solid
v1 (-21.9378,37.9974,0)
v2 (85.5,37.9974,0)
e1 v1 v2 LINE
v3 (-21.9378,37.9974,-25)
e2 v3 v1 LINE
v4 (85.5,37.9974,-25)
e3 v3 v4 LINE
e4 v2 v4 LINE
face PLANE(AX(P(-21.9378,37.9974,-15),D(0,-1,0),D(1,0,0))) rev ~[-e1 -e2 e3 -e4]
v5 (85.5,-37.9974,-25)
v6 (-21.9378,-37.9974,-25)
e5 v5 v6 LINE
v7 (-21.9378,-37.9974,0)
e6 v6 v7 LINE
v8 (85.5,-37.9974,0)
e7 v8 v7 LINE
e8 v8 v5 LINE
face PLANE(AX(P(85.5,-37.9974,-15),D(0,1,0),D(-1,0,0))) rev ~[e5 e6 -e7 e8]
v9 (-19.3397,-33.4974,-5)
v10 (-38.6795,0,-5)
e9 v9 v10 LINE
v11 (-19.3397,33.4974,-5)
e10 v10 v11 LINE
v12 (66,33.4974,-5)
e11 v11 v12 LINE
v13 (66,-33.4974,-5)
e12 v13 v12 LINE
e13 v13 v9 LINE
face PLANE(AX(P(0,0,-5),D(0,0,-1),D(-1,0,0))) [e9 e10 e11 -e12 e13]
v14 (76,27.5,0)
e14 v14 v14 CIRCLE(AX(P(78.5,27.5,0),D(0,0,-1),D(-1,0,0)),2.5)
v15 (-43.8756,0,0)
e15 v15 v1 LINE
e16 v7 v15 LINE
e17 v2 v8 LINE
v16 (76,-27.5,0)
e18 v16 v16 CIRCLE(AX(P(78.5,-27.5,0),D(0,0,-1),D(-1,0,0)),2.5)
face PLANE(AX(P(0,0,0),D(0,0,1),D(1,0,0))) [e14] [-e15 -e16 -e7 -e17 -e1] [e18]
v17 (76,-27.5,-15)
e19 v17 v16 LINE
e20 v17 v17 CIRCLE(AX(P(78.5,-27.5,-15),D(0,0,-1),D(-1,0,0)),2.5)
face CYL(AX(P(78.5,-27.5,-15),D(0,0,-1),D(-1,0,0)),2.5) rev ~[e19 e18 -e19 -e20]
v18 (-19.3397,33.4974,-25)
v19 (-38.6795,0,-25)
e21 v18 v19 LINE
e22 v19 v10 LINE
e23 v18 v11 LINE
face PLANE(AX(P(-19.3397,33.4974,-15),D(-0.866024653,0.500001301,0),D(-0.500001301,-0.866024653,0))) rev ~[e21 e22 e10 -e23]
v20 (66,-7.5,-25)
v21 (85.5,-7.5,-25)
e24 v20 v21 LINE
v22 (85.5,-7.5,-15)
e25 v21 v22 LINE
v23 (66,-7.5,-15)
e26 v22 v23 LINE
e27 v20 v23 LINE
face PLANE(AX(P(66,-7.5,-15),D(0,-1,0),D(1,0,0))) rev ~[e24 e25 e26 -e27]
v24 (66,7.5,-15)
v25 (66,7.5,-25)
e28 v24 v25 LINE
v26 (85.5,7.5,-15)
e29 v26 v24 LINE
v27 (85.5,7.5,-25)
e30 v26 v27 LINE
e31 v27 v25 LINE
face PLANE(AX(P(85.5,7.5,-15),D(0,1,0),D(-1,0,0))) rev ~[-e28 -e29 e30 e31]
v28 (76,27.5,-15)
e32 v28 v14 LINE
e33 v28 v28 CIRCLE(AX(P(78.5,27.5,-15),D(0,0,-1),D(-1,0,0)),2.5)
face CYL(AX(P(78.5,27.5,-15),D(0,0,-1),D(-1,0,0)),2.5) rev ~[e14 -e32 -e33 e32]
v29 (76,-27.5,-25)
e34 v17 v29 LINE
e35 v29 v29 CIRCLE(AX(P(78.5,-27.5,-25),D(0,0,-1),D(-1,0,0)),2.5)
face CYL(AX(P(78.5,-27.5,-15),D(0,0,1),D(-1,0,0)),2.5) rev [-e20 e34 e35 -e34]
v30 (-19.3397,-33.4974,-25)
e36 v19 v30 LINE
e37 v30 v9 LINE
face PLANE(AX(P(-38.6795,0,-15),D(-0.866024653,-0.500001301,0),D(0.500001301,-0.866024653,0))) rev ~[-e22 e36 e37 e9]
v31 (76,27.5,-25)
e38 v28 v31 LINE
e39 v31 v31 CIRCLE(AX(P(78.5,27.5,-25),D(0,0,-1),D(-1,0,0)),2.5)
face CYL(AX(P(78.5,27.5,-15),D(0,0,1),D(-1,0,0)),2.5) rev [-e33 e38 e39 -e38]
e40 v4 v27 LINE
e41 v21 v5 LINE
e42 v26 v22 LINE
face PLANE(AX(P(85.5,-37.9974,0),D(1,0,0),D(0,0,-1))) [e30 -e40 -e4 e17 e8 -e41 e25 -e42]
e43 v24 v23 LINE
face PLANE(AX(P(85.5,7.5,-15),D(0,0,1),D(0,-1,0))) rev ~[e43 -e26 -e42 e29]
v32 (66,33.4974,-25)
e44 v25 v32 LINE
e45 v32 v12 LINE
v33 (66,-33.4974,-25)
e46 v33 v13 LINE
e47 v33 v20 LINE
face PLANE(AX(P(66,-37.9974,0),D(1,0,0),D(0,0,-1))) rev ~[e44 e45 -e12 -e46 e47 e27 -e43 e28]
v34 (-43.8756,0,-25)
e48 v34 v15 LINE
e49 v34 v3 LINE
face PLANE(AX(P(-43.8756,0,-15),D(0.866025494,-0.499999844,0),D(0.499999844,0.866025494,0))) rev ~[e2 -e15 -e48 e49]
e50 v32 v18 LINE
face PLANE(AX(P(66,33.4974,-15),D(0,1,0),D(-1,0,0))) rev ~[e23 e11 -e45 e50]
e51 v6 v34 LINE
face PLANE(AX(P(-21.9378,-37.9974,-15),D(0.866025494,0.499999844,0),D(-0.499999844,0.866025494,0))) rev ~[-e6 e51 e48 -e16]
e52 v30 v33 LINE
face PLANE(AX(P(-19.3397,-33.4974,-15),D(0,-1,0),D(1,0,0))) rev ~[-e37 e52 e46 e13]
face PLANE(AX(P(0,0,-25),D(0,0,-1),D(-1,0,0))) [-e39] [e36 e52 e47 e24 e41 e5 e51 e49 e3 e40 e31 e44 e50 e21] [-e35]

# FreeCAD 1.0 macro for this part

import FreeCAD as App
import Part
import Sketcher

V = App.Vector
Q = App.Units.Quantity

doc = App.newDocument("Part")
body = doc.addObject("PartDesign::Body", "Body")

sketch1 = body.newObject("Sketcher::SketchObject", "Sketch")
sketch1.AttachmentSupport = (doc.getObject("XY_Plane"), [""])
sketch1.MapMode = "FlatFace"
sketch1.addGeometry([
    Part.LineSegment(V(-28, 48, 0), V(-56, 0, 0)),
    Part.LineSegment(V(-56, 0, 0), V(-28, -48, 0)),
    Part.LineSegment(V(-28, -48, 0), V(86, -48, 0)),
    Part.LineSegment(V(86, -48, 0), V(86, 48, 0)),
    Part.LineSegment(V(86, 48, 0), V(-28, 48, 0)),
], False)
sketch1.addConstraint([
    Sketcher.Constraint("Coincident", 0, 2, 1, 1),
    Sketcher.Constraint("Coincident", 1, 2, 2, 1),
    Sketcher.Constraint("Coincident", 2, 2, 3, 1),
    Sketcher.Constraint("Coincident", 3, 2, 4, 1),
    Sketcher.Constraint("Coincident", 4, 2, 0, 1),
    Sketcher.Constraint("Horizontal", 2),
    Sketcher.Constraint("Vertical", 3),
    Sketcher.Constraint("Horizontal", 4),
    Sketcher.Constraint("Symmetric", 1, 2, 4, 2, -1),
    Sketcher.Constraint("PointOnObject", 0, 2, -1),
    Sketcher.Constraint("DistanceX", 2, 1, 2, 2, Q("114 mm")),
    Sketcher.Constraint("Angle", 0, Q("-120 deg")),
    Sketcher.Constraint("Distance", 0, Q("56 mm")),
    Sketcher.Constraint("DistanceX", 0, 2, -1, 1, Q("56 mm")),
])
pad1 = body.newObject("PartDesign::Pad", "Pad")
pad1.Profile = sketch1
pad1.Length = 5

sketch2 = body.newObject("Sketcher::SketchObject", "Sketch001")
sketch2.AttachmentSupport = (doc.getObject("XY_Plane"), [""])
sketch2.MapMode = "FlatFace"
sketch2.addGeometry([
    Part.LineSegment(V(86, 48, 0), V(86, -48, 0)),
    Part.LineSegment(V(86, -48, 0), V(-28, -48, 0)),
    Part.LineSegment(V(-28, -48, 0), V(-56, 0, 0)),
    Part.LineSegment(V(-56, 0, 0), V(-28, 48, 0)),
    Part.LineSegment(V(-28, 48, 0), V(86, 48, 0)),
    Part.LineSegment(V(-19, -33, 0), V(66, -33, 0)),
    Part.LineSegment(V(66, -33, 0), V(66, 33, 0)),
    Part.LineSegment(V(66, 33, 0), V(-19, 33, 0)),
    Part.LineSegment(V(-19, 33, 0), V(-39, 0, 0)),
    Part.LineSegment(V(-39, 0, 0), V(-19, -33, 0)),
], False)
sketch2.addConstraint([
    Sketcher.Constraint("Coincident", 0, 2, 1, 1),
    Sketcher.Constraint("Coincident", 1, 2, 2, 1),
    Sketcher.Constraint("Coincident", 2, 2, 3, 1),
    Sketcher.Constraint("Coincident", 3, 2, 4, 1),
    Sketcher.Constraint("Coincident", 4, 2, 0, 1),
    Sketcher.Constraint("Coincident", 5, 2, 6, 1),
    Sketcher.Constraint("Coincident", 6, 2, 7, 1),
    Sketcher.Constraint("Coincident", 7, 2, 8, 1),
    Sketcher.Constraint("Coincident", 8, 2, 9, 1),
    Sketcher.Constraint("Coincident", 9, 2, 5, 1),
    Sketcher.Constraint("Vertical", 0),
    Sketcher.Constraint("Horizontal", 1),
    Sketcher.Constraint("Horizontal", 4),
    Sketcher.Constraint("Horizontal", 5),
    Sketcher.Constraint("Vertical", 6),
    Sketcher.Constraint("Horizontal", 7),
    Sketcher.Constraint("Symmetric", 1, 2, 3, 2, -1),
    Sketcher.Constraint("Symmetric", 7, 2, 9, 2, -1),
    Sketcher.Constraint("PointOnObject", 2, 2, -1),
    Sketcher.Constraint("PointOnObject", 8, 2, -1),
    Sketcher.Constraint("Parallel", 3, 8),
    Sketcher.Constraint("DistanceX", 5, 2, 0, 2, Q("20 mm")),
    Sketcher.Constraint("DistanceY", 0, 2, 5, 2, Q("15 mm")),
    Sketcher.Constraint("DistanceX", 1, 2, 1, 1, Q("114 mm")),
    Sketcher.Constraint("Angle", 2, Q("120 deg")),
    Sketcher.Constraint("Distance", 2, Q("56 mm")),
    Sketcher.Constraint("DistanceX", -1, 1, 0, 2, Q("86 mm")),
    Sketcher.Constraint("DistanceX", 5, 1, 5, 2, Q("85.3397 mm")),
])
pad2 = body.newObject("PartDesign::Pad", "Pad001")
pad2.Profile = sketch2
pad2.Length = 15
pad2.Reversed = True

sketch3 = body.newObject("Sketcher::SketchObject", "Sketch002")
sketch3.AttachmentSupport = (doc.getObject("XY_Plane"), [""])
sketch3.MapMode = "FlatFace"
sketch3.AttachmentOffset = App.Placement(V(0, 0, 5), App.Rotation())
sketch3.addGeometry([
    Part.LineSegment(V(86, -48, 0), V(86, 48, 0)),
    Part.LineSegment(V(86, 48, 0), V(-28, 48, 0)),
    Part.LineSegment(V(-28, 48, 0), V(-56, 0, 0)),
    Part.LineSegment(V(-56, 0, 0), V(-28, -48, 0)),
    Part.LineSegment(V(-28, -48, 0), V(86, -48, 0)),
    Part.LineSegment(V(76, 38, 0), V(76, -38, 0)),
    Part.LineSegment(V(76, -38, 0), V(-22, -38, 0)),
    Part.LineSegment(V(-22, -38, 0), V(-44, 0, 0)),
    Part.LineSegment(V(-44, 0, 0), V(-22, 38, 0)),
    Part.LineSegment(V(-22, 38, 0), V(76, 38, 0)),
], False)
sketch3.addConstraint([
    Sketcher.Constraint("Coincident", 0, 2, 1, 1),
    Sketcher.Constraint("Coincident", 1, 2, 2, 1),
    Sketcher.Constraint("Coincident", 2, 2, 3, 1),
    Sketcher.Constraint("Coincident", 3, 2, 4, 1),
    Sketcher.Constraint("Coincident", 4, 2, 0, 1),
    Sketcher.Constraint("Coincident", 5, 2, 6, 1),
    Sketcher.Constraint("Coincident", 6, 2, 7, 1),
    Sketcher.Constraint("Coincident", 7, 2, 8, 1),
    Sketcher.Constraint("Coincident", 8, 2, 9, 1),
    Sketcher.Constraint("Coincident", 9, 2, 5, 1),
    Sketcher.Constraint("Vertical", 0),
    Sketcher.Constraint("Horizontal", 1),
    Sketcher.Constraint("Horizontal", 4),
    Sketcher.Constraint("Vertical", 5),
    Sketcher.Constraint("Horizontal", 6),
    Sketcher.Constraint("Horizontal", 9),
    Sketcher.Constraint("Symmetric", 1, 2, 3, 2, -1),
    Sketcher.Constraint("Symmetric", 6, 2, 8, 2, -1),
    Sketcher.Constraint("PointOnObject", 2, 2, -1),
    Sketcher.Constraint("PointOnObject", 7, 2, -1),
    Sketcher.Constraint("Parallel", 3, 7),
    Sketcher.Constraint("DistanceX", 5, 2, 4, 2, Q("10 mm")),
    Sketcher.Constraint("DistanceY", 4, 2, 5, 2, Q("10 mm")),
    Sketcher.Constraint("DistanceX", 1, 2, 1, 1, Q("114 mm")),
    Sketcher.Constraint("Angle", 2, Q("-120 deg")),
    Sketcher.Constraint("Distance", 2, Q("56 mm")),
    Sketcher.Constraint("DistanceX", -1, 1, 0, 2, Q("86 mm")),
    Sketcher.Constraint("DistanceX", 6, 2, 6, 1, Q("98.2265 mm")),
])
pocket1 = body.newObject("PartDesign::Pocket", "Pocket")
pocket1.Profile = sketch3
pocket1.Type = "ThroughAll"

sketch4 = body.newObject("Sketcher::SketchObject", "Sketch003")
sketch4.AttachmentSupport = (doc.getObject("XY_Plane"), [""])
sketch4.MapMode = "FlatFace"
sketch4.addGeometry([
    Part.LineSegment(V(86, -38, 0), V(76, -38, 0)),
    Part.LineSegment(V(76, -38, 0), V(76, 38, 0)),
    Part.LineSegment(V(76, 38, 0), V(86, 38, 0)),
    Part.LineSegment(V(86, 38, 0), V(86, -38, 0)),
], False)
sketch4.addConstraint([
    Sketcher.Constraint("Coincident", 0, 2, 1, 1),
    Sketcher.Constraint("Coincident", 1, 2, 2, 1),
    Sketcher.Constraint("Coincident", 2, 2, 3, 1),
    Sketcher.Constraint("Coincident", 3, 2, 0, 1),
    Sketcher.Constraint("Horizontal", 0),
    Sketcher.Constraint("Vertical", 1),
    Sketcher.Constraint("Horizontal", 2),
    Sketcher.Constraint("Vertical", 3),
    Sketcher.Constraint("DistanceX", 0, 2, 0, 1, Q("10 mm")),
    Sketcher.Constraint("DistanceX", -1, 1, 0, 2, Q("76 mm")),
    Sketcher.Constraint("DistanceY", 1, 1, 1, 2, Q("76.9948 mm")),
    Sketcher.Constraint("DistanceY", 0, 2, -1, 1, Q("38.4974 mm")),
])
pad3 = body.newObject("PartDesign::Pad", "Pad002")
pad3.Profile = sketch4
pad3.Type = "TwoLengths"
pad3.Length = 15
pad3.Length2 = 5
pad3.Reversed = True

sketch5 = body.newObject("Sketcher::SketchObject", "Sketch004")
sketch5.AttachmentSupport = (doc.getObject("XY_Plane"), [""])
sketch5.MapMode = "FlatFace"
sketch5.addGeometry([
    Part.LineSegment(V(-19, 33, 0), V(66, 33, 0)),
    Part.LineSegment(V(66, 33, 0), V(66, -33, 0)),
    Part.LineSegment(V(66, -33, 0), V(-19, -33, 0)),
    Part.LineSegment(V(-19, -33, 0), V(-39, 0, 0)),
    Part.LineSegment(V(-39, 0, 0), V(-19, 33, 0)),
], False)
sketch5.addConstraint([
    Sketcher.Constraint("Coincident", 0, 2, 1, 1),
    Sketcher.Constraint("Coincident", 1, 2, 2, 1),
    Sketcher.Constraint("Coincident", 2, 2, 3, 1),
    Sketcher.Constraint("Coincident", 3, 2, 4, 1),
    Sketcher.Constraint("Coincident", 4, 2, 0, 1),
    Sketcher.Constraint("Horizontal", 0),
    Sketcher.Constraint("Vertical", 1),
    Sketcher.Constraint("Horizontal", 2),
    Sketcher.Constraint("Symmetric", 2, 2, 4, 2, -1),
    Sketcher.Constraint("PointOnObject", 3, 2, -1),
    Sketcher.Constraint("Angle", 3, Q("120 deg")),
    Sketcher.Constraint("DistanceX", -1, 1, 0, 2, Q("66 mm")),
    Sketcher.Constraint("DistanceX", 0, 1, 0, 2, Q("85.3397 mm")),
    Sketcher.Constraint("DistanceY", 1, 2, 1, 1, Q("66.9948 mm")),
])
pad4 = body.newObject("PartDesign::Pad", "Pad003")
pad4.Profile = sketch5
pad4.Length = 5
pad4.Reversed = True

sketch6 = body.newObject("Sketcher::SketchObject", "Sketch005")
sketch6.AttachmentSupport = (doc.getObject("XY_Plane"), [""])
sketch6.MapMode = "FlatFace"
sketch6.AttachmentOffset = App.Placement(V(0, 0, 5), App.Rotation())
sketch6.addGeometry([
    Part.LineSegment(V(86, -38, 0), V(86, 38, 0)),
    Part.LineSegment(V(86, 38, 0), V(-22, 38, 0)),
    Part.LineSegment(V(-22, 38, 0), V(-44, 0, 0)),
    Part.LineSegment(V(-44, 0, 0), V(-22, -38, 0)),
    Part.LineSegment(V(-22, -38, 0), V(86, -38, 0)),
], False)
sketch6.addConstraint([
    Sketcher.Constraint("Coincident", 0, 2, 1, 1),
    Sketcher.Constraint("Coincident", 1, 2, 2, 1),
    Sketcher.Constraint("Coincident", 2, 2, 3, 1),
    Sketcher.Constraint("Coincident", 3, 2, 4, 1),
    Sketcher.Constraint("Coincident", 4, 2, 0, 1),
    Sketcher.Constraint("Vertical", 0),
    Sketcher.Constraint("Horizontal", 1),
    Sketcher.Constraint("Horizontal", 4),
    Sketcher.Constraint("Symmetric", 1, 2, 3, 2, -1),
    Sketcher.Constraint("PointOnObject", 2, 2, -1),
    Sketcher.Constraint("Angle", 2, Q("-120 deg")),
    Sketcher.Constraint("DistanceX", -1, 1, 0, 2, Q("86 mm")),
    Sketcher.Constraint("Distance", 2, Q("44.453 mm")),
    Sketcher.Constraint("DistanceX", 1, 2, 1, 1, Q("108.2265 mm")),
])
pocket2 = body.newObject("PartDesign::Pocket", "Pocket001")
pocket2.Profile = sketch6
pocket2.Length = 5

sketch7 = body.newObject("Sketcher::SketchObject", "Sketch006")
sketch7.AttachmentSupport = (doc.getObject("YZ_Plane"), [""])
sketch7.MapMode = "FlatFace"
sketch7.AttachmentOffset = App.Placement(V(0, 0, 66), App.Rotation())
sketch7.addGeometry([
    Part.LineSegment(V(-8, -15, 0), V(-8, -5, 0)),
    Part.LineSegment(V(-8, -5, 0), V(8, -5, 0)),
    Part.LineSegment(V(8, -5, 0), V(8, -15, 0)),
    Part.LineSegment(V(8, -15, 0), V(-8, -15, 0)),
], False)
sketch7.addConstraint([
    Sketcher.Constraint("Coincident", 0, 2, 1, 1),
    Sketcher.Constraint("Coincident", 1, 2, 2, 1),
    Sketcher.Constraint("Coincident", 2, 2, 3, 1),
    Sketcher.Constraint("Coincident", 3, 2, 0, 1),
    Sketcher.Constraint("Vertical", 0),
    Sketcher.Constraint("Horizontal", 1),
    Sketcher.Constraint("Vertical", 2),
    Sketcher.Constraint("Horizontal", 3),
    Sketcher.Constraint("DistanceX", 1, 1, 1, 2, Q("15 mm")),
    Sketcher.Constraint("DistanceY", 2, 2, -1, 1, Q("15 mm")),
    Sketcher.Constraint("DistanceY", 0, 1, 0, 2, Q("10 mm")),
    Sketcher.Constraint("DistanceX", 0, 2, -1, 1, Q("7.5 mm")),
])
pocket3 = body.newObject("PartDesign::Pocket", "Pocket002")
pocket3.Profile = sketch7
pocket3.Type = "ThroughAll"
pocket3.Reversed = True

sketch8 = body.newObject("Sketcher::SketchObject", "Sketch007")
sketch8.AttachmentSupport = (doc.getObject("XY_Plane"), [""])
sketch8.MapMode = "FlatFace"
sketch8.AttachmentOffset = App.Placement(V(0, 0, -15), App.Rotation())
sketch8.addGeometry([
    Part.Circle(V(78.5, -27.5, 0), V(0, 0, 1), 2.5),
    Part.Circle(V(78.5, 27.5, 0), V(0, 0, 1), 2.5),
], False)
sketch8.addConstraint([
    Sketcher.Constraint("Equal", 0, 1),
    Sketcher.Constraint("Symmetric", 0, 3, 1, 3, -1),
    Sketcher.Constraint("Diameter", 0, Q("5 mm")),
    Sketcher.Constraint("DistanceY", 0, 3, 1, 3, Q("55 mm")),
    Sketcher.Constraint("DistanceX", -1, 1, 0, 3, Q("78.5 mm")),
])
pocket4 = body.newObject("PartDesign::Pocket", "Pocket003")
pocket4.Profile = sketch8
pocket4.Type = "ThroughAll"
pocket4.Reversed = True

sketch9 = body.newObject("Sketcher::SketchObject", "Sketch008")
sketch9.AttachmentSupport = (doc.getObject("XY_Plane"), [""])
sketch9.MapMode = "FlatFace"
sketch9.addGeometry([
    Part.LineSegment(V(86, 38, 0), V(-22, 38, 0)),
    Part.LineSegment(V(-22, 38, 0), V(-44, 0, 0)),
    Part.LineSegment(V(-44, 0, 0), V(-22, -38, 0)),
    Part.LineSegment(V(-22, -38, 0), V(86, -38, 0)),
    Part.LineSegment(V(86, -38, 0), V(86, 38, 0)),
    Part.LineSegment(V(-22, -38, 0), V(-44, 0, 0)),
    Part.LineSegment(V(-44, 0, 0), V(-22, 38, 0)),
    Part.LineSegment(V(-22, 38, 0), V(86, 38, 0)),
    Part.LineSegment(V(86, 38, 0), V(86, -38, 0)),
    Part.LineSegment(V(86, -38, 0), V(-22, -38, 0)),
], False)
sketch9.addConstraint([
    Sketcher.Constraint("Coincident", 0, 2, 1, 1),
    Sketcher.Constraint("Coincident", 1, 2, 2, 1),
    Sketcher.Constraint("Coincident", 2, 2, 3, 1),
    Sketcher.Constraint("Coincident", 3, 2, 4, 1),
    Sketcher.Constraint("Coincident", 4, 2, 0, 1),
    Sketcher.Constraint("Coincident", 5, 2, 6, 1),
    Sketcher.Constraint("Coincident", 6, 2, 7, 1),
    Sketcher.Constraint("Coincident", 7, 2, 8, 1),
    Sketcher.Constraint("Coincident", 8, 2, 9, 1),
    Sketcher.Constraint("Coincident", 9, 2, 5, 1),
    Sketcher.Constraint("Horizontal", 0),
    Sketcher.Constraint("Horizontal", 3),
    Sketcher.Constraint("Vertical", 4),
    Sketcher.Constraint("Horizontal", 7),
    Sketcher.Constraint("Vertical", 8),
    Sketcher.Constraint("Horizontal", 9),
    Sketcher.Constraint("Symmetric", 0, 2, 2, 2, -1),
    Sketcher.Constraint("Symmetric", 6, 2, 9, 2, -1),
    Sketcher.Constraint("PointOnObject", 1, 2, -1),
    Sketcher.Constraint("PointOnObject", 5, 2, -1),
    Sketcher.Constraint("Parallel", 2, 5),
    Sketcher.Constraint("DistanceY", 6, 2, 0, 2, Q("0.5 mm")),
    Sketcher.Constraint("DistanceX", 7, 2, 4, 2, Q("0.5 mm")),
    Sketcher.Constraint("Angle", 1, Q("-120 deg")),
    Sketcher.Constraint("DistanceX", -1, 1, 3, 2, Q("86 mm")),
    Sketcher.Constraint("Distance", 1, Q("44.453 mm")),
    Sketcher.Constraint("DistanceX", 0, 2, 0, 1, Q("108.2265 mm")),
    Sketcher.Constraint("DistanceX", 7, 1, 7, 2, Q("107.4378 mm")),
])
pocket5 = body.newObject("PartDesign::Pocket", "Pocket004")
pocket5.Profile = sketch9
pocket5.Type = "ThroughAll"

sketch10 = body.newObject("Sketcher::SketchObject", "Sketch009")
sketch10.AttachmentSupport = (doc.getObject("XY_Plane"), [""])
sketch10.MapMode = "FlatFace"
sketch10.AttachmentOffset = App.Placement(V(0, 0, -15), App.Rotation())
sketch10.addGeometry([
    Part.LineSegment(V(-21.9, 38, 0), V(85.5, 38, 0)),
    Part.LineSegment(V(85.5, 38, 0), V(85.5, 7.5, 0)),
    Part.LineSegment(V(85.5, 7.5, 0), V(66, 7.5, 0)),
    Part.LineSegment(V(66, 7.5, 0), V(66, 33.5, 0)),
    Part.LineSegment(V(66, 33.5, 0), V(-19.3, 33.5, 0)),
    Part.LineSegment(V(-19.3, 33.5, 0), V(-38.7, 0, 0)),
    Part.LineSegment(V(-38.7, 0, 0), V(-19.3, -33.5, 0)),
    Part.LineSegment(V(-19.3, -33.5, 0), V(66, -33.5, 0)),
    Part.LineSegment(V(66, -33.5, 0), V(66, -7.5, 0)),
    Part.LineSegment(V(66, -7.5, 0), V(85.5, -7.5, 0)),
    Part.LineSegment(V(85.5, -7.5, 0), V(85.5, -38, 0)),
    Part.LineSegment(V(85.5, -38, 0), V(-21.9, -38, 0)),
    Part.LineSegment(V(-21.9, -38, 0), V(-43.9, 0, 0)),
    Part.LineSegment(V(-43.9, 0, 0), V(-21.9, 38, 0)),
    Part.Circle(V(78.5, -27.5, 0), V(0, 0, 1), 2.5),
    Part.Circle(V(78.5, 27.5, 0), V(0, 0, 1), 2.5),
], False)
sketch10.addConstraint([
    Sketcher.Constraint("Coincident", 0, 2, 1, 1),
    Sketcher.Constraint("Coincident", 1, 2, 2, 1),
    Sketcher.Constraint("Coincident", 2, 2, 3, 1),
    Sketcher.Constraint("Coincident", 3, 2, 4, 1),
    Sketcher.Constraint("Coincident", 4, 2, 5, 1),
    Sketcher.Constraint("Coincident", 5, 2, 6, 1),
    Sketcher.Constraint("Coincident", 6, 2, 7, 1),
    Sketcher.Constraint("Coincident", 7, 2, 8, 1),
    Sketcher.Constraint("Coincident", 8, 2, 9, 1),
    Sketcher.Constraint("Coincident", 9, 2, 10, 1),
    Sketcher.Constraint("Coincident", 10, 2, 11, 1),
    Sketcher.Constraint("Coincident", 11, 2, 12, 1),
    Sketcher.Constraint("Coincident", 12, 2, 13, 1),
    Sketcher.Constraint("Coincident", 13, 2, 0, 1),
    Sketcher.Constraint("Horizontal", 0),
    Sketcher.Constraint("Vertical", 1),
    Sketcher.Constraint("Horizontal", 2),
    Sketcher.Constraint("Vertical", 3),
    Sketcher.Constraint("Horizontal", 4),
    Sketcher.Constraint("Horizontal", 7),
    Sketcher.Constraint("Vertical", 8),
    Sketcher.Constraint("Horizontal", 9),
    Sketcher.Constraint("Vertical", 10),
    Sketcher.Constraint("Horizontal", 11),
    Sketcher.Constraint("Equal", 14, 15),
    Sketcher.Constraint("Symmetric", 14, 3, 15, 3, -1),
    Sketcher.Constraint("Symmetric", 4, 2, 6, 2, -1),
    Sketcher.Constraint("Symmetric", 2, 2, 8, 2, -1),
    Sketcher.Constraint("Symmetric", 0, 2, 10, 2, -1),
    Sketcher.Constraint("PointOnObject", 5, 2, -1),
    Sketcher.Constraint("PointOnObject", 12, 2, -1),
    Sketcher.Constraint("Parallel", 6, 12),
    Sketcher.Constraint("Parallel", 5, 13),
    Sketcher.Constraint("Diameter", 14, Q("5 mm")),
    Sketcher.Constraint("Angle", 5, Q("-120 deg")),
    Sketcher.Constraint("DistanceX", 2, 2, 2, 1, Q("19.5 mm")),
    Sketcher.Constraint("DistanceX", -1, 1, 2, 2, Q("66 mm")),
    Sketcher.Constraint("DistanceY", 14, 3, 15, 3, Q("55 mm")),
    Sketcher.Constraint("DistanceX", 15, 3, 0, 2, Q("7 mm")),
    Sketcher.Constraint("DistanceY", 1, 2, 15, 3, Q("20 mm")),
    Sketcher.Constraint("DistanceY", 3, 2, 0, 2, Q("4.5 mm")),
    Sketcher.Constraint("DistanceX", 0, 1, 0, 2, Q("107.4378 mm")),
    Sketcher.Constraint("DistanceX", 4, 2, 4, 1, Q("85.3397 mm")),
    Sketcher.Constraint("DistanceY", 1, 2, 1, 1, Q("30.4974 mm")),
])
pad5 = body.newObject("PartDesign::Pad", "Pad004")
pad5.Profile = sketch10
pad5.Length = 10
pad5.Reversed = True

sketch11 = body.newObject("Sketcher::SketchObject", "Sketch010")
sketch11.AttachmentSupport = (doc.getObject("YZ_Plane"), [""])
sketch11.MapMode = "FlatFace"
sketch11.AttachmentOffset = App.Placement(V(0, 0, 85.5), App.Rotation())
sketch11.addGeometry([
    Part.LineSegment(V(8, -15, 0), V(8, -5, 0)),
    Part.LineSegment(V(8, -5, 0), V(-8, -5, 0)),
    Part.LineSegment(V(-8, -5, 0), V(-8, -15, 0)),
    Part.LineSegment(V(-8, -15, 0), V(8, -15, 0)),
], False)
sketch11.addConstraint([
    Sketcher.Constraint("Coincident", 0, 2, 1, 1),
    Sketcher.Constraint("Coincident", 1, 2, 2, 1),
    Sketcher.Constraint("Coincident", 2, 2, 3, 1),
    Sketcher.Constraint("Coincident", 3, 2, 0, 1),
    Sketcher.Constraint("Vertical", 0),
    Sketcher.Constraint("Horizontal", 1),
    Sketcher.Constraint("Vertical", 2),
    Sketcher.Constraint("Horizontal", 3),
    Sketcher.Constraint("DistanceY", 0, 1, 0, 2, Q("10 mm")),
    Sketcher.Constraint("DistanceX", 1, 2, 1, 1, Q("15 mm")),
    Sketcher.Constraint("DistanceY", 0, 2, -1, 1, Q("5 mm")),
    Sketcher.Constraint("DistanceX", -1, 1, 0, 2, Q("7.5 mm")),
])
pad6 = body.newObject("PartDesign::Pad", "Pad005")
pad6.Profile = sketch11
pad6.Length = 19.5
pad6.Reversed = True

doc.recompute()
